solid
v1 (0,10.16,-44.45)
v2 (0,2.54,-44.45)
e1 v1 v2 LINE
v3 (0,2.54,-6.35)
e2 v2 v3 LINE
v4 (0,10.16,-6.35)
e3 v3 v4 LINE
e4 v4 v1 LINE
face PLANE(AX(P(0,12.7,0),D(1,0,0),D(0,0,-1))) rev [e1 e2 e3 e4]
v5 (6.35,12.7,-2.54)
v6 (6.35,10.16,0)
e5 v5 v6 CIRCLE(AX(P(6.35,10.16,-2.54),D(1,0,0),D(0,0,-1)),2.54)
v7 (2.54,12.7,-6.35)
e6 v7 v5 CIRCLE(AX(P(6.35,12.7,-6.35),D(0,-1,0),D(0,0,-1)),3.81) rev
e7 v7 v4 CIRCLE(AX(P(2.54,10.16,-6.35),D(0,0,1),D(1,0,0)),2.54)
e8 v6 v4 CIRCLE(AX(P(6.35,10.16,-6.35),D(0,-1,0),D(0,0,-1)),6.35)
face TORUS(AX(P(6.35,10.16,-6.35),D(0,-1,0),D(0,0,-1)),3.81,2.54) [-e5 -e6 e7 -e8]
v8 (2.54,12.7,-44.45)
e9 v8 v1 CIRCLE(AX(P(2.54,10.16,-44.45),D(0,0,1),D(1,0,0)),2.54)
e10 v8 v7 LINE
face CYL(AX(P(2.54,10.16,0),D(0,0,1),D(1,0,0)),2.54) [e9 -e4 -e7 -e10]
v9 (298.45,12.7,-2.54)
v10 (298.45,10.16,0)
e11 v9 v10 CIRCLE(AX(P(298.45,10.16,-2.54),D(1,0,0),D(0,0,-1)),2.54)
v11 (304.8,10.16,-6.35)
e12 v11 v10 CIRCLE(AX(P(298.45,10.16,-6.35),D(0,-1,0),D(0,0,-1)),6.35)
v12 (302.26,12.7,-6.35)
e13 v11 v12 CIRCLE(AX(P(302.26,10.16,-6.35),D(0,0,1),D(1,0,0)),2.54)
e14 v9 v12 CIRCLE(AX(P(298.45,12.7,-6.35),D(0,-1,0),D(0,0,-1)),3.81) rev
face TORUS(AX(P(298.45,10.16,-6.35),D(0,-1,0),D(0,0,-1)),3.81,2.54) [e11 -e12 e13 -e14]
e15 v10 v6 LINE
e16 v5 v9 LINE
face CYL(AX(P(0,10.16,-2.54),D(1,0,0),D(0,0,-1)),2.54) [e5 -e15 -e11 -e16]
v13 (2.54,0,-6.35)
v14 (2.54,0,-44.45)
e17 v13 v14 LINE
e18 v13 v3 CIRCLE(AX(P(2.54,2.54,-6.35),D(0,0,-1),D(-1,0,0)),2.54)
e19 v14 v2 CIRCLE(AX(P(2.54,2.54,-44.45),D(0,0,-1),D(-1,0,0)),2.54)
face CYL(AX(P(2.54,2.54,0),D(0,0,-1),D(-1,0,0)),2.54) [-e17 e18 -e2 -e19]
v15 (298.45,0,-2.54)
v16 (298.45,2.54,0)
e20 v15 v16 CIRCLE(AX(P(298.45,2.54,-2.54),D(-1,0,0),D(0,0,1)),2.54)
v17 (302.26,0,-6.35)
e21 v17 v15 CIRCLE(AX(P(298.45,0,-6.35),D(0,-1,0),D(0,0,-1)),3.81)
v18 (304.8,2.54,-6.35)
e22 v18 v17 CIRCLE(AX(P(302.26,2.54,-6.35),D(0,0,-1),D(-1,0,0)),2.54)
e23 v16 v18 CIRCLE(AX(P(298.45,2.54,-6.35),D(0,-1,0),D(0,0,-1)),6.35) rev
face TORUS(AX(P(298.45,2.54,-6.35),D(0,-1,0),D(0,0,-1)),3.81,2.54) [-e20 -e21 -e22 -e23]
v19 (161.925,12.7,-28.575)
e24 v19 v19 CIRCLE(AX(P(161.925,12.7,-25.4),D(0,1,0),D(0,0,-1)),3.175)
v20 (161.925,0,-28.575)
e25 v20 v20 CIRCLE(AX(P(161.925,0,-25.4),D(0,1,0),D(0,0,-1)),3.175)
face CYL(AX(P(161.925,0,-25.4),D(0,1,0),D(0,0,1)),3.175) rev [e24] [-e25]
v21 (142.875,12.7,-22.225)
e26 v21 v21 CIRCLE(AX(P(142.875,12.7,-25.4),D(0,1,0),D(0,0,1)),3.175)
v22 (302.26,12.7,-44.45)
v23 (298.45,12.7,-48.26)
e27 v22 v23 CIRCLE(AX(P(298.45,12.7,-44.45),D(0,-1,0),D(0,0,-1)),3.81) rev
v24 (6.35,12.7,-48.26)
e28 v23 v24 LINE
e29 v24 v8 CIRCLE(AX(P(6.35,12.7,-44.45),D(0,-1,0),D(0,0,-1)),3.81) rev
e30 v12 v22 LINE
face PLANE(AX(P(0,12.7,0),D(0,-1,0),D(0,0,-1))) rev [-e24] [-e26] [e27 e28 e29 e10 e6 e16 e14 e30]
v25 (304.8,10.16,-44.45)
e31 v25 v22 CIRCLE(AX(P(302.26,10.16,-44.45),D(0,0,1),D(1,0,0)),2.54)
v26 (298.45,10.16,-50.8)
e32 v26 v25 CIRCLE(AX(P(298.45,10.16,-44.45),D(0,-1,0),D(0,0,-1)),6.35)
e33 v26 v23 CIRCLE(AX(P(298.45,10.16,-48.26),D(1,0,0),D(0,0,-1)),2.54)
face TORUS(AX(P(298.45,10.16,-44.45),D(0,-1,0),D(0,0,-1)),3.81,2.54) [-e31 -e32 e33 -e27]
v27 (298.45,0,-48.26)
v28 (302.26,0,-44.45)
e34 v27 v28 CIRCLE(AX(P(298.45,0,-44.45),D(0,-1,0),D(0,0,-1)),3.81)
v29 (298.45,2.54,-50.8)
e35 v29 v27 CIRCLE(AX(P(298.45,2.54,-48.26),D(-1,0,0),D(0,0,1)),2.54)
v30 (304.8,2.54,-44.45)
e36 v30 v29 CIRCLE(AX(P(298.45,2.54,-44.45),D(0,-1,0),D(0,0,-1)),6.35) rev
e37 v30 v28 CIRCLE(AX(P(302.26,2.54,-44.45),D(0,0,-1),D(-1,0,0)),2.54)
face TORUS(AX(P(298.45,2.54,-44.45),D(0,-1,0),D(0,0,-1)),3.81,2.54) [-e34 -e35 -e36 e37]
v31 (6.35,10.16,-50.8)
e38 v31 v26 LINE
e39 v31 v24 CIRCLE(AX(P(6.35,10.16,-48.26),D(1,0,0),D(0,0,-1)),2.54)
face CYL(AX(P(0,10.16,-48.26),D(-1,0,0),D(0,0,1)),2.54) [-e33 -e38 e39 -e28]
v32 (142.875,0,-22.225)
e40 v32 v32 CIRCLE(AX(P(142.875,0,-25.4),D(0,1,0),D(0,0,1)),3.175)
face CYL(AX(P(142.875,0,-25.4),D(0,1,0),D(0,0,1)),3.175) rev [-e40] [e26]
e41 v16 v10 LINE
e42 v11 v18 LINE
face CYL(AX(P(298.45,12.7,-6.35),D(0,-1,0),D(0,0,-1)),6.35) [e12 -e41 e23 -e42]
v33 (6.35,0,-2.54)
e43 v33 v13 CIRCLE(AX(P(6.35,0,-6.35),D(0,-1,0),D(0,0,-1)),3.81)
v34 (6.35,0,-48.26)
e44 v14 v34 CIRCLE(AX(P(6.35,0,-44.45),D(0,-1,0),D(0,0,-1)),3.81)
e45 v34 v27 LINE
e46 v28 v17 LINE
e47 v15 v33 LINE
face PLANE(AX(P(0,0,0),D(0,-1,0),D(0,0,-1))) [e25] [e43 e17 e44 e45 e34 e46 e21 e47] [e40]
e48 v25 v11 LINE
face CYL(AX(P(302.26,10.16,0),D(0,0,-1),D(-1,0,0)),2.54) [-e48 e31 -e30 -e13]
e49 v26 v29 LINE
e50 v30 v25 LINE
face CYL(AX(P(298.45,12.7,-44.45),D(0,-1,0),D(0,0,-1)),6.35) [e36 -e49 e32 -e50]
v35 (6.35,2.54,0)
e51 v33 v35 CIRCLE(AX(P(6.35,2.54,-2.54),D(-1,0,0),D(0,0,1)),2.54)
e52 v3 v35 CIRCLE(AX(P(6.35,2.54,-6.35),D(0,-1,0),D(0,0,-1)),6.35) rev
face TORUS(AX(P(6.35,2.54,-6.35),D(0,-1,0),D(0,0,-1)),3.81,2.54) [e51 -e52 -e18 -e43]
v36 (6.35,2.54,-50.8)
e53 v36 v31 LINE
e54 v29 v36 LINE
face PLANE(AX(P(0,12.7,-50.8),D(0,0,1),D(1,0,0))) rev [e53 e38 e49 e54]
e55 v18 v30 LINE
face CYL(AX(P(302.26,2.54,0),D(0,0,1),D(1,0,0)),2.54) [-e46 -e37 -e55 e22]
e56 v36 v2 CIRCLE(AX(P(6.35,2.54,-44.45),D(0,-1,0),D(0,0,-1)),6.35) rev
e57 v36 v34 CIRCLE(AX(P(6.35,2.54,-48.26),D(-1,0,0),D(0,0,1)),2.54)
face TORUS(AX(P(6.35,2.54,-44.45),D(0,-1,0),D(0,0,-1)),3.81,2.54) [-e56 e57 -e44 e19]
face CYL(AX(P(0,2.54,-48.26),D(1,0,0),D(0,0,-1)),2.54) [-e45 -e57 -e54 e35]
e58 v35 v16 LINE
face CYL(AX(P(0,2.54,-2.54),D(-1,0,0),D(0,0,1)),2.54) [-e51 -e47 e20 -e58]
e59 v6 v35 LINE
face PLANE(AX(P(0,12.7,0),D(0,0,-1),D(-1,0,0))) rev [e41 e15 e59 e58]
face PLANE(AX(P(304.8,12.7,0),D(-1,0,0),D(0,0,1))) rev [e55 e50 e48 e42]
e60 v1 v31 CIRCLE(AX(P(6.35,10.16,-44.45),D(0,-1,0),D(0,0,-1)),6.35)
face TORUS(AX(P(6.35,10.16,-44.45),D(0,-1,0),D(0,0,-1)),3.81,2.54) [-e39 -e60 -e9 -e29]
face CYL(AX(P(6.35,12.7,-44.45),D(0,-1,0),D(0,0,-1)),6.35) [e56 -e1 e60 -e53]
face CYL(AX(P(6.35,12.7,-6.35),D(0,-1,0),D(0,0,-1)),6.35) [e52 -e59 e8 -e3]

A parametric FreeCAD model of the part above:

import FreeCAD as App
import Part
import Sketcher
from FreeCAD import Vector
Q = App.Units.Quantity


def edges_at(feature, points):
    """Names of the edges that pass closest to the given points."""
    edges = feature.Shape.Edges
    near = lambda p: min(range(len(edges)), key=lambda i: edges[i].distToShape(Part.Vertex(*p))[0])
    return sorted({f"Edge{near(p) + 1}" for p in points})

doc = App.newDocument("Part")
body = doc.addObject("PartDesign::Body", "Body")

# Sketch on XZ plane
sketch1 = doc.addObject("Sketcher::SketchObject", "Sketch")
body.addObject(sketch1)
sketch1.AttachmentSupport = (doc.XZ_Plane, [""])
sketch1.MapMode = "FlatFace"
sketch1.addGeometry([
    Part.LineSegment(Vector(0, -51, 0), Vector(0, 0, 0)),
    Part.LineSegment(Vector(0, 0, 0), Vector(305, 0, 0)),
    Part.LineSegment(Vector(305, 0, 0), Vector(305, -51, 0)),
    Part.LineSegment(Vector(305, -51, 0), Vector(0, -51, 0)),
], False)
sketch1.addConstraint([
    Sketcher.Constraint("Coincident", 0, 2, 1, 1),
    Sketcher.Constraint("Coincident", 1, 2, 2, 1),
    Sketcher.Constraint("Coincident", 2, 2, 3, 1),
    Sketcher.Constraint("Coincident", 3, 2, 0, 1),
    Sketcher.Constraint("Vertical", 0),
    Sketcher.Constraint("Horizontal", 1),
    Sketcher.Constraint("Vertical", 2),
    Sketcher.Constraint("Horizontal", 3),
    Sketcher.Constraint("Coincident", 0, 2, -1, 1),
    Sketcher.Constraint("DistanceX", 1, 1, 1, 2, Q("12 in")),
    Sketcher.Constraint("DistanceY", 0, 1, 0, 2, Q("2 in")),
])
pad1 = doc.addObject("PartDesign::Pad", "Pad")
body.addObject(pad1)
pad1.Profile = sketch1
pad1.Length = Q("0.5 in")
pad1.Reversed = True
doc.recompute()

fillet = doc.addObject("PartDesign::Fillet", "Fillet")
body.addObject(fillet)
fillet.Base = (pad1, edges_at(pad1, [
    (0, 6.35, -50.8),
    (304.8, 6.35, -50.8),
    (304.8, 6.35, 0),
    (0, 6.35, 0),
]))
fillet.Radius = Q("0.25 in")
doc.recompute()

fillet2 = doc.addObject("PartDesign::Fillet", "Fillet001")
body.addObject(fillet2)
fillet2.Base = (fillet, edges_at(fillet, [
    (152.4, 0, -50.8),
    (152.4, 12.7, -50.8),
    (0, 0, -25.4),
    (304.8, 0, -25.4),
    (152.4, 0, 0),
    (1.86, 0, -1.86),
    (1.86, 0, -48.94),
    (302.94, 0, -1.86),
    (302.94, 0, -48.94),
    (304.8, 12.7, -25.4),
    (0, 12.7, -25.4),
    (152.4, 12.7, 0),
    (1.86, 12.7, -1.86),
    (1.86, 12.7, -48.94),
    (302.94, 12.7, -1.86),
    (302.94, 12.7, -48.94),
]))
fillet2.Radius = Q("0.1 in")

# Sketch on XZ plane
sketch2 = doc.addObject("Sketcher::SketchObject", "Sketch001")
body.addObject(sketch2)
sketch2.AttachmentSupport = (doc.XZ_Plane, [""])
sketch2.MapMode = "FlatFace"
sketch2.AttachmentOffset = App.Placement(Vector(0, 0, -0.5 * 25.4), App.Rotation())
sketch2.addGeometry([
    Part.Circle(Vector(142.9, -25.4, 0), Vector(0, 0, 1), 3.2),
    Part.Circle(Vector(161.9, -25.4, 0), Vector(0, 0, 1), 3.2),
], False)
sketch2.addConstraint([
    Sketcher.Constraint("Equal", 0, 1),
    Sketcher.Constraint("Horizontal", 0, 3, 1, 3),
    Sketcher.Constraint("Diameter", 0, Q("0.25 in")),
    Sketcher.Constraint("DistanceY", 0, 3, -1, 1, Q("1 in")),
    Sketcher.Constraint("DistanceX", 0, 3, 1, 3, Q("0.75 in")),
    Sketcher.Constraint("DistanceX", -1, 1, 0, 3, Q("5.625 in")),
])
pocket1 = doc.addObject("PartDesign::Pocket", "Pocket")
body.addObject(pocket1)
pocket1.Profile = sketch2
pocket1.Type = "ThroughAll"
pocket1.Reversed = True

doc.recompute()
